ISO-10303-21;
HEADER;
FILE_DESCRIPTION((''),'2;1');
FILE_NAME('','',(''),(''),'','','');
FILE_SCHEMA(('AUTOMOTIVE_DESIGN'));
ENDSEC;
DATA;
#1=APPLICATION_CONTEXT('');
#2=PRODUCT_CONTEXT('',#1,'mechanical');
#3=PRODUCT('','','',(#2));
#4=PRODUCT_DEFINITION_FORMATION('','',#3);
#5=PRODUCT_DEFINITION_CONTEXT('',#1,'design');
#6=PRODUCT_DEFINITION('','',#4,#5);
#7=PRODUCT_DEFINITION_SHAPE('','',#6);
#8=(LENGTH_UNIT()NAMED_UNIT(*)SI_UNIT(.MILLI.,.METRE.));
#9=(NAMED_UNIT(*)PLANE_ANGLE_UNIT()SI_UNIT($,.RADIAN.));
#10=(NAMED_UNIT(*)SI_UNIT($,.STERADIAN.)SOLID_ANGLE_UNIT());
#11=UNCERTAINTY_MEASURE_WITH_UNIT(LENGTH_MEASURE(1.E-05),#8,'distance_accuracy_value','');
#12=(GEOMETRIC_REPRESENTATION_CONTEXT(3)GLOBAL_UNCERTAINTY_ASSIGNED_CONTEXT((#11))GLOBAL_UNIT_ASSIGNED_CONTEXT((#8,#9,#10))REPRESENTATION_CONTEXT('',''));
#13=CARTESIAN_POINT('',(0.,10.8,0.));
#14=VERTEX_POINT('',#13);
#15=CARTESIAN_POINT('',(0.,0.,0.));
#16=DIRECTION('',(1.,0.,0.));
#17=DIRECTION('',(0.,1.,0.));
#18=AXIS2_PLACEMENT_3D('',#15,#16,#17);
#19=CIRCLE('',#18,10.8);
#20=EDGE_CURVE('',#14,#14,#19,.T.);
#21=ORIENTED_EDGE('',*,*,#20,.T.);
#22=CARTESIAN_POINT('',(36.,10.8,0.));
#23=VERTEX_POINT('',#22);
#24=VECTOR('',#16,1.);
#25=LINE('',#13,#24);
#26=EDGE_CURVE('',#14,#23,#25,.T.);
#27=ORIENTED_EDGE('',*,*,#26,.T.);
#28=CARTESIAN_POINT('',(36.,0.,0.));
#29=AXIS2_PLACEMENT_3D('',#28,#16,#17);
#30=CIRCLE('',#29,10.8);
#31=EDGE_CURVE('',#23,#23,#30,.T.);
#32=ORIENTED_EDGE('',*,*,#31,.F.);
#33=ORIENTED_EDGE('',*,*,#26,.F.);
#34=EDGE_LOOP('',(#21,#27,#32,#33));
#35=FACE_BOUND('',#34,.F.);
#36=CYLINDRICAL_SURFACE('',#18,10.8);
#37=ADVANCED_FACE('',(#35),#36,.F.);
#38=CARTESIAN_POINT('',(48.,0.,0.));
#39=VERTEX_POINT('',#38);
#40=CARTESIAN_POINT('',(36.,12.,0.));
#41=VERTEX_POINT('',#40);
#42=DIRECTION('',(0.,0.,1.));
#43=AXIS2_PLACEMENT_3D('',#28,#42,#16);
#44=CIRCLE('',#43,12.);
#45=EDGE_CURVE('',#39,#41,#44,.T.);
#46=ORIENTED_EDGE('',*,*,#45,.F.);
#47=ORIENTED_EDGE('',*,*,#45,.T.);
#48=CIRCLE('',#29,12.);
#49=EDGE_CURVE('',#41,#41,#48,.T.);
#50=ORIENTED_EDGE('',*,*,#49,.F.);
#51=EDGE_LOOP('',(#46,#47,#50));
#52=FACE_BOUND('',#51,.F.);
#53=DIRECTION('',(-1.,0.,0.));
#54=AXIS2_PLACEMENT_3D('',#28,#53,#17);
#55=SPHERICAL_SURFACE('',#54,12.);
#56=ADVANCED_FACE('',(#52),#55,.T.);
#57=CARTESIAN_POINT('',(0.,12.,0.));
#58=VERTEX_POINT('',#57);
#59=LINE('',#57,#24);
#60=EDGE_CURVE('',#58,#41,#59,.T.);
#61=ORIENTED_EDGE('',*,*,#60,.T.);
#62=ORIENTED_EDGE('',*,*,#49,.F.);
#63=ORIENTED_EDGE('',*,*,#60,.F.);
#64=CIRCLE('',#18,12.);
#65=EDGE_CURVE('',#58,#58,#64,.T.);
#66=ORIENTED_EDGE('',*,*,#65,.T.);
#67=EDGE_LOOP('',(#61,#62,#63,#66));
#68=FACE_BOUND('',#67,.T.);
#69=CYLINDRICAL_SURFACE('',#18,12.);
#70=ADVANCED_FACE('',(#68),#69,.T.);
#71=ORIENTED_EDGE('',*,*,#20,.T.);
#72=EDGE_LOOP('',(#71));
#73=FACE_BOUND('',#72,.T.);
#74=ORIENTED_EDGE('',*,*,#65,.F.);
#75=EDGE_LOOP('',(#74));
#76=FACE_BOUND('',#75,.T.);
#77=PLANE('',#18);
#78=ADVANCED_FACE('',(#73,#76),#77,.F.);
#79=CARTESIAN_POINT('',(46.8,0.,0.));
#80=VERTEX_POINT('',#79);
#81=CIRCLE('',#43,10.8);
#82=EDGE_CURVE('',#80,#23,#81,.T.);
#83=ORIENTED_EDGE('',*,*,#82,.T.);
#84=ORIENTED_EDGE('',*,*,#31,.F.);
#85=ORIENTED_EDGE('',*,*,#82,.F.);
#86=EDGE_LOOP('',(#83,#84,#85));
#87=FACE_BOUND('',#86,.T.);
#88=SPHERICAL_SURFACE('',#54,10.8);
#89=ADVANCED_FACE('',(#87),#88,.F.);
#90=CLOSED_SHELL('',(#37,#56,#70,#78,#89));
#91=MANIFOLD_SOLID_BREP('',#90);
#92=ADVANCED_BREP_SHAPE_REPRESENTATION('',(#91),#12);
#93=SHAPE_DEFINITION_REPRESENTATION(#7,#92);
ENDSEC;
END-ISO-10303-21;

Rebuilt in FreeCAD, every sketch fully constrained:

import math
import FreeCAD as App
import Part
import Sketcher
from FreeCAD import Vector
Q = App.Units.Quantity

doc = App.newDocument("Part")
body = doc.addObject("PartDesign::Body", "Body")

# Sketch on XY plane
sketch1 = doc.addObject("Sketcher::SketchObject", "Sketch")
body.addObject(sketch1)
sketch1.AttachmentSupport = (doc.XY_Plane, [""])
sketch1.MapMode = "FlatFace"
sketch1.addGeometry(Part.LineSegment(Vector(0, 12, 0), Vector(0, 10.8, 0)), False)
sketch1.addGeometry(Part.LineSegment(Vector(0, 10.8, 0), Vector(36, 10.8, 0)), False)
sketch1.addGeometry(Part.ArcOfCircle(Part.Circle(Vector(36, 0, 0), Vector(0, 0, 1), 10.8), math.radians(0), math.radians(90)), False)
sketch1.addGeometry(Part.LineSegment(Vector(46.8, 0, 0), Vector(48, 0, 0)), False)
sketch1.addGeometry(Part.ArcOfCircle(Part.Circle(Vector(36, 0, 0), Vector(0, 0, 1), 12), math.radians(0), math.radians(90)), False)
sketch1.addGeometry(Part.LineSegment(Vector(36, 12, 0), Vector(0, 12, 0)), False)
sketch1.addConstraint(Sketcher.Constraint("Coincident", 0, 2, 1, 1))
sketch1.addConstraint(Sketcher.Constraint("Tangent", 1, 2, 2, 2))
sketch1.addConstraint(Sketcher.Constraint("Coincident", 2, 1, 3, 1))
sketch1.addConstraint(Sketcher.Constraint("Coincident", 3, 2, 4, 1))
sketch1.addConstraint(Sketcher.Constraint("Tangent", 4, 2, 5, 1))
sketch1.addConstraint(Sketcher.Constraint("Coincident", 5, 2, 0, 1))
sketch1.addConstraint(Sketcher.Constraint("Vertical", 0))
sketch1.addConstraint(Sketcher.Constraint("Horizontal", 1))
sketch1.addConstraint(Sketcher.Constraint("Horizontal", 3))
sketch1.addConstraint(Sketcher.Constraint("Horizontal", 5))
sketch1.addConstraint(Sketcher.Constraint("Coincident", 4, 3, 2, 3))
sketch1.addConstraint(Sketcher.Constraint("PointOnObject", 2, 3, -1))
sketch1.addConstraint(Sketcher.Constraint("PointOnObject", 0, 2, -2))
sketch1.addConstraint(Sketcher.Constraint("PointOnObject", 2, 1, -1))
sketch1.addConstraint(Sketcher.Constraint("Radius", 4, Q("12 mm")))
sketch1.addConstraint(Sketcher.Constraint("Radius", 2, Q("10.8 mm")))
sketch1.addConstraint(Sketcher.Constraint("DistanceX", -1, 1, 3, 2, Q("48 mm")))
revolution = doc.addObject("PartDesign::Revolution", "Revolution")
body.addObject(revolution)
revolution.Profile = sketch1
revolution.ReferenceAxis = (sketch1, ["H_Axis"])
revolution.Angle = 360

doc.recompute()
